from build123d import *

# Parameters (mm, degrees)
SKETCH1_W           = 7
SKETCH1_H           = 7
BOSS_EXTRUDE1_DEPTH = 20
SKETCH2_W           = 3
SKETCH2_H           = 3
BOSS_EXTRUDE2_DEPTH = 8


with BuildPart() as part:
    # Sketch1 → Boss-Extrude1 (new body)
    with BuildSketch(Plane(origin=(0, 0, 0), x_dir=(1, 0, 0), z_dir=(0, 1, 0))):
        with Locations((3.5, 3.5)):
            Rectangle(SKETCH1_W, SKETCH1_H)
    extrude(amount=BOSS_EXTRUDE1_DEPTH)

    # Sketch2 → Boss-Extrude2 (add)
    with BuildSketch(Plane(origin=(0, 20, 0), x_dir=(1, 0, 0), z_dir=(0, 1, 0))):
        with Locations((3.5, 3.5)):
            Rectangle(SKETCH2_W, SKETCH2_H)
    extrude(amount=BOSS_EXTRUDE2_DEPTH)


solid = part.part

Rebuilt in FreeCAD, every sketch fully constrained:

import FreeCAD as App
import Part
import Sketcher
from FreeCAD import Vector
Q = App.Units.Quantity


def add_polygon(sketch, points):
    """Adds a closed chain of lines whose ends are joined by coincident constraints."""
    first, n = sketch.GeometryCount, len(points)
    for a, b in zip(points, points[1:] + points[:1]):
        sketch.addGeometry(Part.LineSegment(App.Vector(*a, 0), App.Vector(*b, 0)), False)
    for i in range(n):
        sketch.addConstraint(Sketcher.Constraint("Coincident", first + i, 2, first + (i + 1) % n, 1))

doc = App.newDocument("Part")
body = doc.addObject("PartDesign::Body", "Body")

# Sketch on XZ plane
sketch1 = doc.addObject("Sketcher::SketchObject", "Sketch")
body.addObject(sketch1)
sketch1.AttachmentSupport = (doc.XZ_Plane, [""])
sketch1.MapMode = "FlatFace"
add_polygon(sketch1, [(0, -7), (0, 0), (7, 0), (7, -7)])  # lines 0-3
sketch1.addConstraint(Sketcher.Constraint("Vertical", 0))
sketch1.addConstraint(Sketcher.Constraint("Horizontal", 1))
sketch1.addConstraint(Sketcher.Constraint("Vertical", 2))
sketch1.addConstraint(Sketcher.Constraint("Horizontal", 3))
sketch1.addConstraint(Sketcher.Constraint("Coincident", 0, 2, -1, 1))
sketch1.addConstraint(Sketcher.Constraint("Equal", 3, 0))
sketch1.addConstraint(Sketcher.Constraint("DistanceX", 1, 1, 1, 2, Q("7 mm")))
pad1 = doc.addObject("PartDesign::Pad", "Pad")
body.addObject(pad1)
pad1.Profile = sketch1
pad1.Length = 20
pad1.Reversed = True

# Sketch on XZ plane
sketch2 = doc.addObject("Sketcher::SketchObject", "Sketch001")
body.addObject(sketch2)
sketch2.AttachmentSupport = (doc.XZ_Plane, [""])
sketch2.MapMode = "FlatFace"
sketch2.AttachmentOffset = App.Placement(Vector(0, 0, -20), App.Rotation())
add_polygon(sketch2, [(2, -5), (2, -2), (5, -2), (5, -5)])  # lines 0-3
sketch2.addConstraint(Sketcher.Constraint("Vertical", 0))
sketch2.addConstraint(Sketcher.Constraint("Horizontal", 1))
sketch2.addConstraint(Sketcher.Constraint("Vertical", 2))
sketch2.addConstraint(Sketcher.Constraint("Horizontal", 3))
sketch2.addConstraint(Sketcher.Constraint("Equal", 3, 0))
sketch2.addConstraint(Sketcher.Constraint("DistanceX", 1, 1, 1, 2, Q("3 mm")))
sketch2.addConstraint(Sketcher.Constraint("DistanceX", -1, 1, 0, 2, Q("2 mm")))
sketch2.addConstraint(Sketcher.Constraint("DistanceY", 0, 2, -1, 1, Q("2 mm")))
pad2 = doc.addObject("PartDesign::Pad", "Pad001")
body.addObject(pad2)
pad2.Profile = sketch2
pad2.Length = 8
pad2.Reversed = True

doc.recompute()
